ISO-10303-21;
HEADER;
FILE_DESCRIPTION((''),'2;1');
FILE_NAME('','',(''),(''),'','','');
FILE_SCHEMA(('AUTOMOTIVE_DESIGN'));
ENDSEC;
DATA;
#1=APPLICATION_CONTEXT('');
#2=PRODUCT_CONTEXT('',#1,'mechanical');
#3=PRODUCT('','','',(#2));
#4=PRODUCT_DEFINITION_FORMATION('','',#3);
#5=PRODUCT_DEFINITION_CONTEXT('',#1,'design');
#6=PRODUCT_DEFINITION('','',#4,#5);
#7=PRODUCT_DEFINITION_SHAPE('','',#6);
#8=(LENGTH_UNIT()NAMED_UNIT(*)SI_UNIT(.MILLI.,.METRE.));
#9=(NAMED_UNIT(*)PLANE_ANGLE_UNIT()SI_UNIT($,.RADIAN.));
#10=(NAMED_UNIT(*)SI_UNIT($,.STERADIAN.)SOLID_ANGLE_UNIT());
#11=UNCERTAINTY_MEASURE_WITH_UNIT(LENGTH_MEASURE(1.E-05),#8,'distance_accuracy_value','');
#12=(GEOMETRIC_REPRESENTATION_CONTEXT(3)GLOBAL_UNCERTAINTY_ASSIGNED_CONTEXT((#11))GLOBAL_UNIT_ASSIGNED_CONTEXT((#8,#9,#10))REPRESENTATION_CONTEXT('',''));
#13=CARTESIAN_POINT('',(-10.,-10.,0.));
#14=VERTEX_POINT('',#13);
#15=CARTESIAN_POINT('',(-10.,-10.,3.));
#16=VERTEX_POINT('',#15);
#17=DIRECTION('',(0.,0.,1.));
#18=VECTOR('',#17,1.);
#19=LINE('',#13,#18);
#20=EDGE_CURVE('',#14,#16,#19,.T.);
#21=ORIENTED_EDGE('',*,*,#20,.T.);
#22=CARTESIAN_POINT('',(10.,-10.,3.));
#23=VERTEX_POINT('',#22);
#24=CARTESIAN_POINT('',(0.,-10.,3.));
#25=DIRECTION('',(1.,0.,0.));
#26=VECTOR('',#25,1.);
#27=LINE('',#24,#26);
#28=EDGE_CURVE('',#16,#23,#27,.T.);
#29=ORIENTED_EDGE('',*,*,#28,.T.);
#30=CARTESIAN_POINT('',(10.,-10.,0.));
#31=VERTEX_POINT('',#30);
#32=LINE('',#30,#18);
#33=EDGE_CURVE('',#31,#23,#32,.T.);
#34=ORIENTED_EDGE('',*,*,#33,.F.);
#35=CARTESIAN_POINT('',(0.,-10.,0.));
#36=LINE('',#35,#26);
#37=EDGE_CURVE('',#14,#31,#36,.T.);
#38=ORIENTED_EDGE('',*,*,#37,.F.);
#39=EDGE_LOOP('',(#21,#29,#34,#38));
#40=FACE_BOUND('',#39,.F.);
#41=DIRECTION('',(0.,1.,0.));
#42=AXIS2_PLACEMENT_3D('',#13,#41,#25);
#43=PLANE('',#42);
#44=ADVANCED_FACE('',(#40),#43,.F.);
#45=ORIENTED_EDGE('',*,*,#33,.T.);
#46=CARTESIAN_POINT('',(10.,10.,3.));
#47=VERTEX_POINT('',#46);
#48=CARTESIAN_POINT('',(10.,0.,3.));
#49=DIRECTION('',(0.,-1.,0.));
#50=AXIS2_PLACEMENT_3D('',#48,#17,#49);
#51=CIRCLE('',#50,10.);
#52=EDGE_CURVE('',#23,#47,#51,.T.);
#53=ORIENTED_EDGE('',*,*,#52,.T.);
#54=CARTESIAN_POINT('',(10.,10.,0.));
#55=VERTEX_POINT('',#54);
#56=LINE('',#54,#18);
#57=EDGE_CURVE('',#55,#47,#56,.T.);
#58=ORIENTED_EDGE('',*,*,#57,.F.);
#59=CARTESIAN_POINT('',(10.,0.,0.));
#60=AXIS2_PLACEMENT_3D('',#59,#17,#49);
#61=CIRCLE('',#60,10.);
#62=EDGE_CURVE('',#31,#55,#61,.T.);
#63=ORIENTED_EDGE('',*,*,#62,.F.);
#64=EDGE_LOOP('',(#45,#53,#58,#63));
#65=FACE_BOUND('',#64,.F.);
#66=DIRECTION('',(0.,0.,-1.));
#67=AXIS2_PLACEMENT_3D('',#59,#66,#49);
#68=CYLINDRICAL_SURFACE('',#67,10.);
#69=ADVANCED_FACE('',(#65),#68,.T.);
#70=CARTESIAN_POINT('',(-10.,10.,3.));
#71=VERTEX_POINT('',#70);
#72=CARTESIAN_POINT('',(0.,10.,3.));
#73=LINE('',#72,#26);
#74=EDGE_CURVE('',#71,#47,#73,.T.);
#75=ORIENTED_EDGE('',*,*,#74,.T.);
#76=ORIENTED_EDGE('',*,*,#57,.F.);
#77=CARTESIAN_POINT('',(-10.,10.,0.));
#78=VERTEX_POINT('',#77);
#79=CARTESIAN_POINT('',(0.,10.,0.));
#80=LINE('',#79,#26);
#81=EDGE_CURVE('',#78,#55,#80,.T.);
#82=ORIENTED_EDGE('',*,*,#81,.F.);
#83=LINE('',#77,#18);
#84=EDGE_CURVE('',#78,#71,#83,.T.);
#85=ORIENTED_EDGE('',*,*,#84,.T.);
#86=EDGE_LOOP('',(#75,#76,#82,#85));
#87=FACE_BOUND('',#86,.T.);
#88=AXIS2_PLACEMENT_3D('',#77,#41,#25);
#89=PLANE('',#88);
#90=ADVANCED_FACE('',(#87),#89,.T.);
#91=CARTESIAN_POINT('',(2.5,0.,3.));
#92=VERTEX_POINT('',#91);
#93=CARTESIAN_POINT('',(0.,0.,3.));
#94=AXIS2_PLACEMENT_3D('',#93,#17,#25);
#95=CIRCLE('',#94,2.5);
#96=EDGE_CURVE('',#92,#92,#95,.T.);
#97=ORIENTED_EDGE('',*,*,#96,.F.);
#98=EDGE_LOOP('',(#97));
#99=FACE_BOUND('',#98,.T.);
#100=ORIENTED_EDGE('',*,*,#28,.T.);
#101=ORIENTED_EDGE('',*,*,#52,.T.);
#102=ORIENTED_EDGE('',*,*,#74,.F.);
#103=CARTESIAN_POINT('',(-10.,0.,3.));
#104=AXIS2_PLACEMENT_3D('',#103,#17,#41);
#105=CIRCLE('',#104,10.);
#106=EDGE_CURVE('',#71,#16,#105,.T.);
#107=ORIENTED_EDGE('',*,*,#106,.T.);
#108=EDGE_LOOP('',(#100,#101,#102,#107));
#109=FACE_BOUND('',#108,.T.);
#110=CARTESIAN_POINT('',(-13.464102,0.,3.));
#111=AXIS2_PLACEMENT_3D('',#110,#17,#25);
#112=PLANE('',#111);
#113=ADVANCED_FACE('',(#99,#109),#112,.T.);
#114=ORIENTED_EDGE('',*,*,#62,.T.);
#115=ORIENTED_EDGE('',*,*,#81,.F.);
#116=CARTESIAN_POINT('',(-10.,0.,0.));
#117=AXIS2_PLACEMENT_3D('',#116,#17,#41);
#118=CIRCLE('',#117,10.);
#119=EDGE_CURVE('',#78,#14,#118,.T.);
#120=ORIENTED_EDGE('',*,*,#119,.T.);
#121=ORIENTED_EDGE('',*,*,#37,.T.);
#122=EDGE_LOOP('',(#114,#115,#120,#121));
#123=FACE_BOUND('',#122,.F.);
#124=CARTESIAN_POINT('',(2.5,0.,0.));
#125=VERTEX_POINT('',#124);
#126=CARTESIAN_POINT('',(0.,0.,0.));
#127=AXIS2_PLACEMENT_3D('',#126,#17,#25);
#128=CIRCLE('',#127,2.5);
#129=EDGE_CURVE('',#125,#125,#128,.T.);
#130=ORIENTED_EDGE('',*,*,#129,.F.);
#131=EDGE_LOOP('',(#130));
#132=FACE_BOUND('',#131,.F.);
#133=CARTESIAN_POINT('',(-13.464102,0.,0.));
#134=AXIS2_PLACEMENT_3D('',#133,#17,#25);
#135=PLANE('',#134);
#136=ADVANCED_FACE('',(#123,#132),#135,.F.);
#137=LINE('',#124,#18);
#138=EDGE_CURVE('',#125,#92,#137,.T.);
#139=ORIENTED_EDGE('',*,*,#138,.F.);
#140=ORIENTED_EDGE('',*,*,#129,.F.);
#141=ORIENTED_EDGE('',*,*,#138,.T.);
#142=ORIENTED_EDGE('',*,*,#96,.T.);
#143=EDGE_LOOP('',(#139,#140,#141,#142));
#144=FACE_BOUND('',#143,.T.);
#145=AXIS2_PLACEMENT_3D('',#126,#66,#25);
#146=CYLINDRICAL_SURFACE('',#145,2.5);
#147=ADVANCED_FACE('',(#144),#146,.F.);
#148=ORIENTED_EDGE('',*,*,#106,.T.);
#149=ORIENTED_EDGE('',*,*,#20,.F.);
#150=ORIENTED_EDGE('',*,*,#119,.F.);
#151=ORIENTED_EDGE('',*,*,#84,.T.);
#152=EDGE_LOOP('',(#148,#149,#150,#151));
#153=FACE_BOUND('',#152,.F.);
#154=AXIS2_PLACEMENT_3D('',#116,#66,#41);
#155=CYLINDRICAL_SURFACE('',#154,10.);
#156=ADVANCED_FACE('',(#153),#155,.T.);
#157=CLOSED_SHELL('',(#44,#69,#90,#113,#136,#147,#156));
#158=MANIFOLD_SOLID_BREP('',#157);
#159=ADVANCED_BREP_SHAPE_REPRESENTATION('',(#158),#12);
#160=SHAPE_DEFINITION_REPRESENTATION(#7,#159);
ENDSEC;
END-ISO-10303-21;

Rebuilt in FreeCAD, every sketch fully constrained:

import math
import FreeCAD as App
import Part
import Sketcher

V = App.Vector
Q = App.Units.Quantity

doc = App.newDocument("Part")
body = doc.addObject("PartDesign::Body", "Body")

sketch1 = body.newObject("Sketcher::SketchObject", "Sketch")
sketch1.AttachmentSupport = (doc.getObject("XY_Plane"), [""])
sketch1.MapMode = "FlatFace"
sketch1.addGeometry([
    Part.ArcOfCircle(Part.Circle(V(-10, 0, 0), V(0, 0, 1), 10), math.radians(90), math.radians(270)),
    Part.LineSegment(V(-10, -10, 0), V(10, -10, 0)),
    Part.ArcOfCircle(Part.Circle(V(10, 0, 0), V(0, 0, 1), 10), math.radians(-90), math.radians(90)),
    Part.LineSegment(V(10, 10, 0), V(-10, 10, 0)),
    Part.Circle(V(0, 0, 0), V(0, 0, 1), 2.5),
], False)
sketch1.addConstraint([
    Sketcher.Constraint("Tangent", 0, 2, 1, 1),
    Sketcher.Constraint("Tangent", 1, 2, 2, 1),
    Sketcher.Constraint("Tangent", 2, 2, 3, 1),
    Sketcher.Constraint("Tangent", 3, 2, 0, 1),
    Sketcher.Constraint("Horizontal", 1),
    Sketcher.Constraint("Horizontal", 3),
    Sketcher.Constraint("Coincident", 4, 3, -1, 1),
    Sketcher.Constraint("Symmetric", 0, 3, 2, 3, -1, 1),
    Sketcher.Constraint("Diameter", 4, Q("5 mm")),
    Sketcher.Constraint("Radius", 0, Q("10 mm")),
    Sketcher.Constraint("DistanceX", 1, 1, 1, 2, Q("20 mm")),
])
pad1 = body.newObject("PartDesign::Pad", "Pad")
pad1.Profile = sketch1
pad1.Length = 3

doc.recompute()
